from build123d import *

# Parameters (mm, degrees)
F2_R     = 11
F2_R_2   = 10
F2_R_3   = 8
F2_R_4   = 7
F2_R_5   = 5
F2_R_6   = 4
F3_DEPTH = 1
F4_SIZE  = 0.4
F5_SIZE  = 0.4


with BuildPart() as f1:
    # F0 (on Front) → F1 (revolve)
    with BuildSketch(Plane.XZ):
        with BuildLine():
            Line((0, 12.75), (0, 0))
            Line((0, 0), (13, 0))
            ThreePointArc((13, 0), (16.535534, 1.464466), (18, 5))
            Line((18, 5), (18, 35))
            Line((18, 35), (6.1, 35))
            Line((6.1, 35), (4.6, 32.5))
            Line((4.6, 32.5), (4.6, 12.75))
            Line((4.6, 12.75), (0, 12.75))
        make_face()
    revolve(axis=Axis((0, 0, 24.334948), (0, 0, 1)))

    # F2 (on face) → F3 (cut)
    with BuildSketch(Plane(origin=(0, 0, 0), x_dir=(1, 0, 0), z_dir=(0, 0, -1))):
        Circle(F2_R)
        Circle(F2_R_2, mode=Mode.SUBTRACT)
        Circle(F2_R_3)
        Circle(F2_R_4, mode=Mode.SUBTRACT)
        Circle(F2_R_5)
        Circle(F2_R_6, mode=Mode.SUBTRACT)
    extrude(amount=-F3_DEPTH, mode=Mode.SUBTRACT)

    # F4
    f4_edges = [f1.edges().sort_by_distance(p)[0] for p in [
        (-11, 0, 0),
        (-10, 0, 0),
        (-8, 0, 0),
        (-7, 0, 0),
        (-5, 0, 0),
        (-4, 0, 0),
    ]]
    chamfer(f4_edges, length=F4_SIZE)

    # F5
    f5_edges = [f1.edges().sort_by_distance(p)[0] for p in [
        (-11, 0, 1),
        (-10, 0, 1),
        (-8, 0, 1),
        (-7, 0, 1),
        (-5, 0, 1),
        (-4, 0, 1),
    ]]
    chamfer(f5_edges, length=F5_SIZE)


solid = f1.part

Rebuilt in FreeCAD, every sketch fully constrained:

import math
import FreeCAD as App
import Part
import Sketcher
from FreeCAD import Vector
Q = App.Units.Quantity


def edges_at(feature, points):
    """Names of the edges that pass closest to the given points."""
    edges = feature.Shape.Edges
    near = lambda p: min(range(len(edges)), key=lambda i: edges[i].distToShape(Part.Vertex(*p))[0])
    return sorted({f"Edge{near(p) + 1}" for p in points})

doc = App.newDocument("Part")
params = doc.addObject("Spreadsheet::Sheet", "Params")
for row, (alias, value) in enumerate([
    ("sketch1_radius", "5 mm"),
    ("sketch1_width", "13 mm"),
    ("sketch1_height", "30 mm"),
    ("sketch1_width2", "11.9 mm"),
    ("sketch1_width3", "4.6 mm"),
    ("revolution_angle", "360 deg"),
    ("sketch2_diameter", "22 mm"),
    ("sketch2_diameter2", "20 mm"),
    ("sketch2_diameter3", "16 mm"),
    ("sketch2_diameter4", "14 mm"),
    ("sketch2_diameter5", "10 mm"),
    ("pocket1_length", "1 mm"),
    ("chamfer_size", "0.4 mm"),
    ("chamfer2_size", "0.4 mm"),
], start=1):
    params.set(f"A{row}", alias)
    params.set(f"B{row}", "=" + value)
    params.setAlias(f"B{row}", alias)

body = doc.addObject("PartDesign::Body", "Body")

sketch1 = doc.addObject("Sketcher::SketchObject", "Sketch")
body.addObject(sketch1)
sketch1.AttachmentSupport = (doc.XZ_Plane, [""])
sketch1.MapMode = "FlatFace"
sketch1.addGeometry(Part.LineSegment(Vector(0, 12.75, 0), Vector(0, 0, 0)), False)
sketch1.addGeometry(Part.LineSegment(Vector(0, 0, 0), Vector(13, 0, 0)), False)
sketch1.addGeometry(Part.ArcOfCircle(Part.Circle(Vector(13, 5, 0), Vector(0, 0, 1), 5), math.radians(-90.000004), math.radians(0.000004)), False)
sketch1.addGeometry(Part.LineSegment(Vector(18, 5, 0), Vector(18, 35, 0)), False)
sketch1.addGeometry(Part.LineSegment(Vector(18, 35, 0), Vector(6.1, 35, 0)), False)
sketch1.addGeometry(Part.LineSegment(Vector(6.1, 35, 0), Vector(4.6, 32.5, 0)), False)
sketch1.addGeometry(Part.LineSegment(Vector(4.6, 32.5, 0), Vector(4.6, 12.75, 0)), False)
sketch1.addGeometry(Part.LineSegment(Vector(4.6, 12.75, 0), Vector(0, 12.75, 0)), False)
sketch1.addConstraint(Sketcher.Constraint("Coincident", 0, 2, 1, 1))
sketch1.addConstraint(Sketcher.Constraint("Tangent", 1, 2, 2, 1))
sketch1.addConstraint(Sketcher.Constraint("Tangent", 2, 2, 3, 1))
sketch1.addConstraint(Sketcher.Constraint("Coincident", 3, 2, 4, 1))
sketch1.addConstraint(Sketcher.Constraint("Coincident", 4, 2, 5, 1))
sketch1.addConstraint(Sketcher.Constraint("Coincident", 5, 2, 6, 1))
sketch1.addConstraint(Sketcher.Constraint("Coincident", 6, 2, 7, 1))
sketch1.addConstraint(Sketcher.Constraint("Coincident", 7, 2, 0, 1))
sketch1.addConstraint(Sketcher.Constraint("Vertical", 0))
sketch1.addConstraint(Sketcher.Constraint("Horizontal", 1))
sketch1.addConstraint(Sketcher.Constraint("Vertical", 3))
sketch1.addConstraint(Sketcher.Constraint("Horizontal", 4))
sketch1.addConstraint(Sketcher.Constraint("Vertical", 6))
sketch1.addConstraint(Sketcher.Constraint("Horizontal", 7))
sketch1.addConstraint(Sketcher.Constraint("Coincident", 0, 2, -1, 1))
sketch1.addConstraint(Sketcher.Constraint("Radius", 2, Q("5 mm")))
sketch1.addConstraint(Sketcher.Constraint("DistanceX", 1, 1, 1, 2, Q("13 mm")))
sketch1.addConstraint(Sketcher.Constraint("DistanceY", 3, 1, 3, 2, Q("30 mm")))
sketch1.addConstraint(Sketcher.Constraint("DistanceX", 4, 2, 4, 1, Q("11.9 mm")))
sketch1.addConstraint(Sketcher.Constraint("DistanceX", 7, 2, 7, 1, Q("4.6 mm")))
sketch1.addConstraint(Sketcher.Constraint("DistanceY", 0, 2, 0, 1, Q("12.75 mm")))
sketch1.addConstraint(Sketcher.Constraint("DistanceY", 6, 2, 6, 1, Q("19.75 mm")))
sketch1.setExpression("Constraints[15]", "Params.sketch1_radius")
sketch1.setExpression("Constraints[16]", "Params.sketch1_width")
sketch1.setExpression("Constraints[17]", "Params.sketch1_height")
sketch1.setExpression("Constraints[18]", "Params.sketch1_width2")
sketch1.setExpression("Constraints[19]", "Params.sketch1_width3")
revolution = doc.addObject("PartDesign::Revolution", "Revolution")
body.addObject(revolution)
revolution.Profile = sketch1
revolution.ReferenceAxis = (sketch1, ["V_Axis"])
revolution.setExpression("Angle", "Params.revolution_angle")

sketch2 = doc.addObject("Sketcher::SketchObject", "Sketch001")
body.addObject(sketch2)
sketch2.AttachmentSupport = (doc.XY_Plane, [""])
sketch2.MapMode = "FlatFace"
sketch2.addGeometry(Part.Circle(Vector(0, 0, 0), Vector(0, 0, 1), 11), False)
sketch2.addGeometry(Part.Circle(Vector(0, 0, 0), Vector(0, 0, 1), 10), False)
sketch2.addGeometry(Part.Circle(Vector(0, 0, 0), Vector(0, 0, 1), 8), False)
sketch2.addGeometry(Part.Circle(Vector(0, 0, 0), Vector(0, 0, 1), 7), False)
sketch2.addGeometry(Part.Circle(Vector(0, 0, 0), Vector(0, 0, 1), 5), False)
sketch2.addGeometry(Part.Circle(Vector(0, 0, 0), Vector(0, 0, 1), 4), False)
sketch2.addConstraint(Sketcher.Constraint("Coincident", 0, 3, -1, 1))
sketch2.addConstraint(Sketcher.Constraint("Coincident", 1, 3, -1, 1))
sketch2.addConstraint(Sketcher.Constraint("Coincident", 2, 3, -1, 1))
sketch2.addConstraint(Sketcher.Constraint("Coincident", 3, 3, -1, 1))
sketch2.addConstraint(Sketcher.Constraint("Coincident", 4, 3, -1, 1))
sketch2.addConstraint(Sketcher.Constraint("Coincident", 5, 3, -1, 1))
sketch2.addConstraint(Sketcher.Constraint("Diameter", 0, Q("22 mm")))
sketch2.addConstraint(Sketcher.Constraint("Diameter", 1, Q("20 mm")))
sketch2.addConstraint(Sketcher.Constraint("Diameter", 2, Q("16 mm")))
sketch2.addConstraint(Sketcher.Constraint("Diameter", 3, Q("14 mm")))
sketch2.addConstraint(Sketcher.Constraint("Diameter", 4, Q("10 mm")))
sketch2.addConstraint(Sketcher.Constraint("Diameter", 5, Q("8 mm")))
sketch2.setExpression("Constraints[6]", "Params.sketch2_diameter")
sketch2.setExpression("Constraints[7]", "Params.sketch2_diameter2")
sketch2.setExpression("Constraints[8]", "Params.sketch2_diameter3")
sketch2.setExpression("Constraints[9]", "Params.sketch2_diameter4")
sketch2.setExpression("Constraints[10]", "Params.sketch2_diameter5")
pocket1 = doc.addObject("PartDesign::Pocket", "Pocket")
body.addObject(pocket1)
pocket1.Profile = sketch2
pocket1.setExpression("Length", "Params.pocket1_length")
pocket1.Reversed = True
doc.recompute()

chamfer = doc.addObject("PartDesign::Chamfer", "Chamfer")
body.addObject(chamfer)
chamfer.Base = (pocket1, edges_at(pocket1, [
    (-11, 0, 0),
    (-10, 0, 0),
    (-8, 0, 0),
    (-7, 0, 0),
    (-5, 0, 0),
    (-4, 0, 0),
]))
chamfer.setExpression("Size", "Params.chamfer_size")
doc.recompute()

chamfer2 = doc.addObject("PartDesign::Chamfer", "Chamfer001")
body.addObject(chamfer2)
chamfer2.Base = (chamfer, edges_at(chamfer, [
    (-11, 0, 1),
    (-10, 0, 1),
    (-8, 0, 1),
    (-7, 0, 1),
    (-5, 0, 1),
    (-4, 0, 1),
]))
chamfer2.setExpression("Size", "Params.chamfer2_size")

doc.recompute()
